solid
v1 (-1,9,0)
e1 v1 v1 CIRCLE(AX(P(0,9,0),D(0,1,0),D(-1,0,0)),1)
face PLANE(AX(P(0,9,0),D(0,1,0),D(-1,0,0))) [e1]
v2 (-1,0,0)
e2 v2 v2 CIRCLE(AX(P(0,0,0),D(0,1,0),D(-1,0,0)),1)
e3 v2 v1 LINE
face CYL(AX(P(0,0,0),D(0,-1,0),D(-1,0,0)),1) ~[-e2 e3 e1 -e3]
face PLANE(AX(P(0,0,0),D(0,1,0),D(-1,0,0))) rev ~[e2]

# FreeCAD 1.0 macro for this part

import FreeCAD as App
import Part
import Sketcher
Q = App.Units.Quantity

doc = App.newDocument("Part")
body = doc.addObject("PartDesign::Body", "Body")

# Sketch on XZ plane
sketch1 = body.newObject("Sketcher::SketchObject", "Sketch")
sketch1.AttachmentSupport = (doc.getObject("XZ_Plane"), [""])
sketch1.MapMode = "FlatFace"
sketch1.addGeometry(Part.Circle(App.Vector(0, 0, 0), App.Vector(0, 0, 1), 1), False)
sketch1.addConstraint([
    Sketcher.Constraint("Coincident", 0, 3, -1, 1),
    Sketcher.Constraint("Diameter", 0, Q("2 mm")),
])
pad1 = body.newObject("PartDesign::Pad", "Pad")
pad1.Profile = sketch1
pad1.Length = 9
pad1.Reversed = True

doc.recompute()
